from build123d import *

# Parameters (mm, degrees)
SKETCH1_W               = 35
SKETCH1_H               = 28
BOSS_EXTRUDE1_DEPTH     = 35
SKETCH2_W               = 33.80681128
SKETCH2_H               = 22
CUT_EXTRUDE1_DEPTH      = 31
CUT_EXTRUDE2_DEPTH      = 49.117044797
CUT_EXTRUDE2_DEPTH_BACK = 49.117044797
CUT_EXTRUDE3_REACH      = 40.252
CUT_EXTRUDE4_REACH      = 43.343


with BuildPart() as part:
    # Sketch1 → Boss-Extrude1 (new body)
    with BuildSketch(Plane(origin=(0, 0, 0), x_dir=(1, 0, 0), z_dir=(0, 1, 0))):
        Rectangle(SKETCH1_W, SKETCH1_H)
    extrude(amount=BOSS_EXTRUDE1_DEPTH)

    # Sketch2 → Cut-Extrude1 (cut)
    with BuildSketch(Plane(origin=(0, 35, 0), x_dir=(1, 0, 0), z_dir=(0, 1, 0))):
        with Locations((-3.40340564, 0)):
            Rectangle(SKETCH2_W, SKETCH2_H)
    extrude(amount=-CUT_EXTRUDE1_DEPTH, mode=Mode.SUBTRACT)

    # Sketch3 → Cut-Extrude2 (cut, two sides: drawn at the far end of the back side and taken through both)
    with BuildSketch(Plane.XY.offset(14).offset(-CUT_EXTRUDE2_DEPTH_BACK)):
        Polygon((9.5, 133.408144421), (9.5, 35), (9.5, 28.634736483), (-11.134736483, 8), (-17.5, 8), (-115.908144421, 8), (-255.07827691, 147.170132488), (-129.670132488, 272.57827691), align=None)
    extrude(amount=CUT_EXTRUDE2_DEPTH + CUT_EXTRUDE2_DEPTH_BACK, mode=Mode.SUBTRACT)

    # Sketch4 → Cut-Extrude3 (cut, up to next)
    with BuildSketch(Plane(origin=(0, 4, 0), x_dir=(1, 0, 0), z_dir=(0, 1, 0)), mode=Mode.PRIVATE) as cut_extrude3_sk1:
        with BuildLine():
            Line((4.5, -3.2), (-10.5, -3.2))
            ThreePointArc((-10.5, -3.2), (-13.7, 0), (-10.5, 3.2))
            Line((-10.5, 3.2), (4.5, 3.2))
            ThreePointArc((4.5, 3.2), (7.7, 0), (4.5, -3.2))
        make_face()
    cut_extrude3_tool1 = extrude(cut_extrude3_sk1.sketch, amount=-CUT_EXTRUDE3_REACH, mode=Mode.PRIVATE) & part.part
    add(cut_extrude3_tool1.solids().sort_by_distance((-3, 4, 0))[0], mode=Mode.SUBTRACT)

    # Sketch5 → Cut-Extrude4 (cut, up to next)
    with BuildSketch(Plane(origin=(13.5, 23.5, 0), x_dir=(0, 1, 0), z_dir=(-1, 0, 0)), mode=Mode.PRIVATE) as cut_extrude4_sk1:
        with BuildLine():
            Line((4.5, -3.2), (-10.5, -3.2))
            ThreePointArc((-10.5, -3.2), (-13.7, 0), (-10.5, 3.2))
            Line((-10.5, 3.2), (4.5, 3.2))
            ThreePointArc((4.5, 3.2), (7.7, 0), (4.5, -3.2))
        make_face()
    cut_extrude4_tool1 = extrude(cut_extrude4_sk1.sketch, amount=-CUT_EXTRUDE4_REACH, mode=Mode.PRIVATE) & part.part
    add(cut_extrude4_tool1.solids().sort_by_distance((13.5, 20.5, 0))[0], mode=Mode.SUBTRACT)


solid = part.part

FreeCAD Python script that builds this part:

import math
import FreeCAD as App
import Part
import Sketcher
Q = App.Units.Quantity

doc = App.newDocument("Part")
body = doc.addObject("PartDesign::Body", "Body")

# Sketch on XZ plane
sketch1 = body.newObject("Sketcher::SketchObject", "Sketch")
sketch1.AttachmentSupport = (doc.getObject("XZ_Plane"), [""])
sketch1.MapMode = "FlatFace"
sketch1.addGeometry([
    Part.LineSegment(App.Vector(-18, -14, 0), App.Vector(-18, 14, 0)),
    Part.LineSegment(App.Vector(-18, 14, 0), App.Vector(18, 14, 0)),
    Part.LineSegment(App.Vector(18, 14, 0), App.Vector(18, -14, 0)),
    Part.LineSegment(App.Vector(18, -14, 0), App.Vector(-18, -14, 0)),
], False)
sketch1.addConstraint([
    Sketcher.Constraint("Coincident", 0, 2, 1, 1),
    Sketcher.Constraint("Coincident", 1, 2, 2, 1),
    Sketcher.Constraint("Coincident", 2, 2, 3, 1),
    Sketcher.Constraint("Coincident", 3, 2, 0, 1),
    Sketcher.Constraint("Vertical", 0),
    Sketcher.Constraint("Horizontal", 1),
    Sketcher.Constraint("Vertical", 2),
    Sketcher.Constraint("Horizontal", 3),
    Sketcher.Constraint("Symmetric", 0, 2, 2, 2, -1, 1),
    Sketcher.Constraint("DistanceX", 1, 1, 1, 2, Q("35 mm")),
    Sketcher.Constraint("DistanceY", 0, 1, 0, 2, Q("28 mm")),
])
pad1 = body.newObject("PartDesign::Pad", "Pad")
pad1.Profile = sketch1
pad1.Length = 35
pad1.Reversed = True

# Sketch on XZ plane
sketch2 = body.newObject("Sketcher::SketchObject", "Sketch001")
sketch2.AttachmentSupport = (doc.getObject("XZ_Plane"), [""])
sketch2.MapMode = "FlatFace"
sketch2.AttachmentOffset = App.Placement(App.Vector(0, 0, -35), App.Rotation())
sketch2.addGeometry([
    Part.LineSegment(App.Vector(-20, -11, 0), App.Vector(-20, 11, 0)),
    Part.LineSegment(App.Vector(-20, 11, 0), App.Vector(14, 11, 0)),
    Part.LineSegment(App.Vector(14, 11, 0), App.Vector(14, -11, 0)),
    Part.LineSegment(App.Vector(14, -11, 0), App.Vector(-20, -11, 0)),
], False)
sketch2.addConstraint([
    Sketcher.Constraint("Coincident", 0, 2, 1, 1),
    Sketcher.Constraint("Coincident", 1, 2, 2, 1),
    Sketcher.Constraint("Coincident", 2, 2, 3, 1),
    Sketcher.Constraint("Coincident", 3, 2, 0, 1),
    Sketcher.Constraint("Vertical", 0),
    Sketcher.Constraint("Horizontal", 1),
    Sketcher.Constraint("Vertical", 2),
    Sketcher.Constraint("Horizontal", 3),
    Sketcher.Constraint("DistanceY", 0, 1, 0, 2, Q("22 mm")),
    Sketcher.Constraint("DistanceY", -1, 1, 0, 2, Q("11 mm")),
    Sketcher.Constraint("DistanceX", -1, 1, 1, 2, Q("13.5 mm")),
    Sketcher.Constraint("DistanceX", 1, 1, 1, 2, Q("33.806811 mm")),
])
pocket1 = body.newObject("PartDesign::Pocket", "Pocket")
pocket1.Profile = sketch2
pocket1.Length = 31
pocket1.Reversed = True

# Sketch on XY plane
sketch3 = body.newObject("Sketcher::SketchObject", "Sketch002")
sketch3.AttachmentSupport = (doc.getObject("XY_Plane"), [""])
sketch3.MapMode = "FlatFace"
sketch3.AttachmentOffset = App.Placement(App.Vector(0, 0, 14), App.Rotation())
sketch3.addGeometry([
    Part.LineSegment(App.Vector(10, 29, 0), App.Vector(10, 133, 0)),  # 0
    Part.LineSegment(App.Vector(10, 133, 0), App.Vector(-130, 273, 0)),  # 1
    Part.LineSegment(App.Vector(-130, 273, 0), App.Vector(-255, 147, 0)),  # 2
    Part.LineSegment(App.Vector(-255, 147, 0), App.Vector(-116, 8, 0)),  # 3
    Part.LineSegment(App.Vector(-116, 8, 0), App.Vector(-11, 8, 0)),  # 4
    Part.LineSegment(App.Vector(-11, 8, 0), App.Vector(10, 29, 0)),  # 5
], False)
sketch3.addConstraint([
    Sketcher.Constraint("Coincident", 0, 2, 1, 1),
    Sketcher.Constraint("Coincident", 1, 2, 2, 1),
    Sketcher.Constraint("Coincident", 2, 2, 3, 1),
    Sketcher.Constraint("Coincident", 3, 2, 4, 1),
    Sketcher.Constraint("Coincident", 4, 2, 5, 1),
    Sketcher.Constraint("Coincident", 5, 2, 0, 1),
    Sketcher.Constraint("Vertical", 0),
    Sketcher.Constraint("Horizontal", 4),
    Sketcher.Constraint("Perpendicular", 1, 2),
    Sketcher.Constraint("Perpendicular", 2, 3),
    Sketcher.Constraint("Perpendicular", 3, 5),
    Sketcher.Constraint("Equal", 4, 0),
    Sketcher.Constraint("Equal", 1, 3),
    Sketcher.Constraint("DistanceY", -1, 1, 3, 2, Q("8 mm")),
    Sketcher.Constraint("DistanceX", -1, 1, 0, 2, Q("9.5 mm")),
    Sketcher.Constraint("Distance", 2, Q("177.353899 mm")),
    Sketcher.Constraint("Distance", 1, Q("196.816289 mm")),
    Sketcher.Constraint("DistanceX", 4, 1, 4, 2, Q("104.773408 mm")),
])
pocket2 = body.newObject("PartDesign::Pocket", "Pocket001")
pocket2.Profile = sketch3
pocket2.Type = "ThroughAll"
pocket2.Midplane = True

# Sketch on XZ plane
sketch4 = body.newObject("Sketcher::SketchObject", "Sketch003")
sketch4.AttachmentSupport = (doc.getObject("XZ_Plane"), [""])
sketch4.MapMode = "FlatFace"
sketch4.AttachmentOffset = App.Placement(App.Vector(0, 0, -4), App.Rotation())
sketch4.addGeometry([
    Part.LineSegment(App.Vector(-10.5, 3.2, 0), App.Vector(4.5, 3.2, 0)),
    Part.ArcOfCircle(Part.Circle(App.Vector(4.5, 0, 0), App.Vector(0, 0, 1), 3.2), math.radians(-90), math.radians(90)),
    Part.LineSegment(App.Vector(4.5, -3.2, 0), App.Vector(-10.5, -3.2, 0)),
    Part.ArcOfCircle(Part.Circle(App.Vector(-10.5, 0, 0), App.Vector(0, 0, 1), 3.2), math.radians(90), math.radians(270)),
], False)
sketch4.addConstraint([
    Sketcher.Constraint("Tangent", 0, 2, 1, 2),
    Sketcher.Constraint("Tangent", 1, 1, 2, 1),
    Sketcher.Constraint("Tangent", 2, 2, 3, 2),
    Sketcher.Constraint("Tangent", 3, 1, 0, 1),
    Sketcher.Constraint("Horizontal", 0),
    Sketcher.Constraint("Horizontal", 2),
    Sketcher.Constraint("PointOnObject", 1, 3, -1),
    Sketcher.Constraint("Radius", 1, Q("3.2 mm")),
    Sketcher.Constraint("DistanceX", 0, 1, 0, 2, Q("15 mm")),
    Sketcher.Constraint("DistanceX", -1, 1, 1, 3, Q("4.5 mm")),
])
pocket3 = body.newObject("PartDesign::Pocket", "Pocket002")
pocket3.Profile = sketch4
pocket3.Type = "UpToFirst"
pocket3.Reversed = True

# Sketch on YZ plane
sketch5 = body.newObject("Sketcher::SketchObject", "Sketch004")
sketch5.AttachmentSupport = (doc.getObject("YZ_Plane"), [""])
sketch5.MapMode = "FlatFace"
sketch5.AttachmentOffset = App.Placement(App.Vector(0, 0, 13.5), App.Rotation())
sketch5.addGeometry([
    Part.LineSegment(App.Vector(13, 3.2, 0), App.Vector(28, 3.2, 0)),
    Part.ArcOfCircle(Part.Circle(App.Vector(28, 0, 0), App.Vector(0, 0, 1), 3.2), math.radians(-90), math.radians(90)),
    Part.LineSegment(App.Vector(28, -3.2, 0), App.Vector(13, -3.2, 0)),
    Part.ArcOfCircle(Part.Circle(App.Vector(13, 0, 0), App.Vector(0, 0, 1), 3.2), math.radians(90), math.radians(270)),
], False)
sketch5.addConstraint([
    Sketcher.Constraint("Tangent", 0, 2, 1, 2),
    Sketcher.Constraint("Tangent", 1, 1, 2, 1),
    Sketcher.Constraint("Tangent", 2, 2, 3, 2),
    Sketcher.Constraint("Tangent", 3, 1, 0, 1),
    Sketcher.Constraint("Horizontal", 0),
    Sketcher.Constraint("Horizontal", 2),
    Sketcher.Constraint("PointOnObject", 1, 3, -1),
    Sketcher.Constraint("Radius", 1, Q("3.2 mm")),
    Sketcher.Constraint("DistanceX", 0, 1, 0, 2, Q("15 mm")),
    Sketcher.Constraint("DistanceX", -1, 1, 1, 3, Q("28 mm")),
])
pocket4 = body.newObject("PartDesign::Pocket", "Pocket003")
pocket4.Profile = sketch5
pocket4.Type = "UpToFirst"
pocket4.Reversed = True

doc.recompute()
